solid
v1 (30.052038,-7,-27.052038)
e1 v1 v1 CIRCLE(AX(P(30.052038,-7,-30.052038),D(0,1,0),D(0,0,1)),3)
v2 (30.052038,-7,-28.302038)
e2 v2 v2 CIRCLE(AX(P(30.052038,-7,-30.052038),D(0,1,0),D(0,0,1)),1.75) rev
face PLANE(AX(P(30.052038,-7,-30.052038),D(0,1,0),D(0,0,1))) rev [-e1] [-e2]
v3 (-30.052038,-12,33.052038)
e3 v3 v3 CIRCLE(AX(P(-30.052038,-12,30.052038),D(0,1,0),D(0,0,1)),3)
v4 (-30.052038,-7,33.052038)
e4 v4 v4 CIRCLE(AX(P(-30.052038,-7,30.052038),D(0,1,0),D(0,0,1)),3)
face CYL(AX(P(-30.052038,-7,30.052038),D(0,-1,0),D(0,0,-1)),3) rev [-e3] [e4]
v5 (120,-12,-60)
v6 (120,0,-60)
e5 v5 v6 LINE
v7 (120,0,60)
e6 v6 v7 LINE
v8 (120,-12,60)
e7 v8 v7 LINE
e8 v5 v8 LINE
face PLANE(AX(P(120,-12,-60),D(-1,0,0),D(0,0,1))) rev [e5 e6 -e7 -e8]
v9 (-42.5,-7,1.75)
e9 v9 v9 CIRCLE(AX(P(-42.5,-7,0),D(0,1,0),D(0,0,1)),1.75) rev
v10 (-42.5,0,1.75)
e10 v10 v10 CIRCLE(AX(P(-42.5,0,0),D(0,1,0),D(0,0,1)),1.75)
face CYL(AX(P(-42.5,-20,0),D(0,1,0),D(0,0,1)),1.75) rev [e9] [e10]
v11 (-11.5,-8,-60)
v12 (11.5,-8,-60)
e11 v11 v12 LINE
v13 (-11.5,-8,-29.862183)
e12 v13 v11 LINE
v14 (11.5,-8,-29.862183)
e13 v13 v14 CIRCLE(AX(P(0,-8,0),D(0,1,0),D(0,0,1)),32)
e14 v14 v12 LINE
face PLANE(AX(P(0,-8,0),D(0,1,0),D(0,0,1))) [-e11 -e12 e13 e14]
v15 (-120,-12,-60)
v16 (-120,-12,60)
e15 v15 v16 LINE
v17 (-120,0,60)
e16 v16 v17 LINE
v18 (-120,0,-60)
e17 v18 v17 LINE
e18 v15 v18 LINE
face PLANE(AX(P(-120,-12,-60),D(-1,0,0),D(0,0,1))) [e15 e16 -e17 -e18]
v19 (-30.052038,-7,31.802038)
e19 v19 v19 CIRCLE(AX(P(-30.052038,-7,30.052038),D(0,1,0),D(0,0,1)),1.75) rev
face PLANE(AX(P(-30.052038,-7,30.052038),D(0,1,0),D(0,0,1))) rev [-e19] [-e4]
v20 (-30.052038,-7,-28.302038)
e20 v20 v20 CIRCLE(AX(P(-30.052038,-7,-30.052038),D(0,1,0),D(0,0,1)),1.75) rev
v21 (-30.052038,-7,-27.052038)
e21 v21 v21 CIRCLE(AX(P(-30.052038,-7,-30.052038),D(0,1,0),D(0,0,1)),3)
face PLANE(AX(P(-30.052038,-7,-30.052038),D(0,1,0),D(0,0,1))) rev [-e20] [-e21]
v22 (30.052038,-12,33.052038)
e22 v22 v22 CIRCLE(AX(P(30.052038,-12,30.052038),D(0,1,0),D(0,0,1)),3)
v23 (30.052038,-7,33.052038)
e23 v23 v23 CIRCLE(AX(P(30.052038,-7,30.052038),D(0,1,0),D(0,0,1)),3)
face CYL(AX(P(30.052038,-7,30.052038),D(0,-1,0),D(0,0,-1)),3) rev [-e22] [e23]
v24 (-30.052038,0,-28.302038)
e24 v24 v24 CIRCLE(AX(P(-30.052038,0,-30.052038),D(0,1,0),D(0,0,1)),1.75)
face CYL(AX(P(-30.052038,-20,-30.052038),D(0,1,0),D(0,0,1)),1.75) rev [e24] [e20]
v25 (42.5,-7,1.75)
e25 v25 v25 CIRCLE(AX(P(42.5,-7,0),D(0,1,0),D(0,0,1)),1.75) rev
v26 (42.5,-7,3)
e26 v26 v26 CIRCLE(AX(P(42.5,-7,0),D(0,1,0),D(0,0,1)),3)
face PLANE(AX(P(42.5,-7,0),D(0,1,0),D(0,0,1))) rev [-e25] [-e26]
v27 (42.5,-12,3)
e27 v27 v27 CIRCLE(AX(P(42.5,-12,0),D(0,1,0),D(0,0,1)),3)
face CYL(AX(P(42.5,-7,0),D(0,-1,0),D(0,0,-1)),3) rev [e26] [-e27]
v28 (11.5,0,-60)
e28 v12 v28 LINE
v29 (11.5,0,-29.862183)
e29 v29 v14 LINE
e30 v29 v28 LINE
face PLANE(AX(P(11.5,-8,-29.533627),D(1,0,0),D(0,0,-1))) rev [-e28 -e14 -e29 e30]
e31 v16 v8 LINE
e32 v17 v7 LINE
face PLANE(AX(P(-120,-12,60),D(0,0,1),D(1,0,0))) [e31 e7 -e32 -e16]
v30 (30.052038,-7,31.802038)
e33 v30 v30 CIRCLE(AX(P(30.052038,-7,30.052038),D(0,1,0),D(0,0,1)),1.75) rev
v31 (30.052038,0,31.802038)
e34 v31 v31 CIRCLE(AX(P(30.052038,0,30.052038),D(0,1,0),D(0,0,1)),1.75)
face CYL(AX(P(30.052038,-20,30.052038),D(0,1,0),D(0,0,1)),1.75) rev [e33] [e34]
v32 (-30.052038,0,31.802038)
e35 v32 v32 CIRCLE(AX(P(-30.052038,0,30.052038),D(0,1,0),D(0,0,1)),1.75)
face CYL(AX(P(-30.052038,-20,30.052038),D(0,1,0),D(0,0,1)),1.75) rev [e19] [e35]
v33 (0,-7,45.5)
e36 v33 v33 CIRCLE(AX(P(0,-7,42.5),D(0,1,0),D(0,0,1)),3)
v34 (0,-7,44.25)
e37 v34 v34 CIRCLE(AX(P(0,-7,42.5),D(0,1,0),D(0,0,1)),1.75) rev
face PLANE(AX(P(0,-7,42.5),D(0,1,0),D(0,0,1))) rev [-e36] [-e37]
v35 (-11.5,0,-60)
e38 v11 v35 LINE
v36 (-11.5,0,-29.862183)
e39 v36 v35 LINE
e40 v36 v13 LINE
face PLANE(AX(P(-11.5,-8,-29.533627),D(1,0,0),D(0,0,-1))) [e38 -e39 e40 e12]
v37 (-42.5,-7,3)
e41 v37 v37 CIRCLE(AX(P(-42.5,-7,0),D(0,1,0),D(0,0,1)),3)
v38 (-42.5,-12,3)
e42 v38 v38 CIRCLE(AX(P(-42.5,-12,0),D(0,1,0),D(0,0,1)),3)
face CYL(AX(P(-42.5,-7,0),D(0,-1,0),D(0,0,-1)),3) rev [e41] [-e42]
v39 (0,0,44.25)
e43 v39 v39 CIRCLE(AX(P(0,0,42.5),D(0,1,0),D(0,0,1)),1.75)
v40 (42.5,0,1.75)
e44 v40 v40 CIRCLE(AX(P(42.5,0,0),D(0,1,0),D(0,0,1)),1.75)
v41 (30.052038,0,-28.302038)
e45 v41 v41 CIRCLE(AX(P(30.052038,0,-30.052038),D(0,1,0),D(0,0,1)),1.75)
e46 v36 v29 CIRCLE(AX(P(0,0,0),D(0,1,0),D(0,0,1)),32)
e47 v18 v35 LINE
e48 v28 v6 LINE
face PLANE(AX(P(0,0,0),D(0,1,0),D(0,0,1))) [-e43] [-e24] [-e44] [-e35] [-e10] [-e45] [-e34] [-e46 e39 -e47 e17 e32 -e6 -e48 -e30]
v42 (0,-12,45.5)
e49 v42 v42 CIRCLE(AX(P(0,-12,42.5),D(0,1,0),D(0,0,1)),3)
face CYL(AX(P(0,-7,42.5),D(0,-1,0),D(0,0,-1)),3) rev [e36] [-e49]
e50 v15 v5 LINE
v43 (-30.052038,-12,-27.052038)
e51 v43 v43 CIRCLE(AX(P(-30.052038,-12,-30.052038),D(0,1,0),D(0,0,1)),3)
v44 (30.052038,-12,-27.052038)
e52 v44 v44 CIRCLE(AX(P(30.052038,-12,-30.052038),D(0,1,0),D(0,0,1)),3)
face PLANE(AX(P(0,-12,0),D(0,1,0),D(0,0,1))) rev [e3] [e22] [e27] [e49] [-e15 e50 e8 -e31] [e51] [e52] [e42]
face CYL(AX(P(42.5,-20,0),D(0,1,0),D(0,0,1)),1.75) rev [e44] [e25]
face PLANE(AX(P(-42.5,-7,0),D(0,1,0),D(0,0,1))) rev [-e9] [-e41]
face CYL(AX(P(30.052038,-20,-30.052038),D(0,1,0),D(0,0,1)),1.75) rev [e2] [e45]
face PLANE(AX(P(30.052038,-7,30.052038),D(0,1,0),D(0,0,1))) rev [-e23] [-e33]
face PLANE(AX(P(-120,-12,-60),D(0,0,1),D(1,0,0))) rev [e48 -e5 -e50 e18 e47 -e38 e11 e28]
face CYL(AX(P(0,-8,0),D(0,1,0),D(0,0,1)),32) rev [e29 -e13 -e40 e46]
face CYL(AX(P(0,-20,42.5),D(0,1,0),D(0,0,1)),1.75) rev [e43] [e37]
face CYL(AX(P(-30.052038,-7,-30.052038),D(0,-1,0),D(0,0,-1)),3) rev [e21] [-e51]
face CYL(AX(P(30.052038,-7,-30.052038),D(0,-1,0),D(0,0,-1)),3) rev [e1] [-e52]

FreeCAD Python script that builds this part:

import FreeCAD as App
import Part
import Sketcher

V = App.Vector


def add_polygon(sketch, points):
    """Adds a closed chain of lines whose ends are joined by coincident constraints."""
    first, n = sketch.GeometryCount, len(points)
    for a, b in zip(points, points[1:] + points[:1]):
        sketch.addGeometry(Part.LineSegment(App.Vector(*a, 0), App.Vector(*b, 0)), False)
    for i in range(n):
        sketch.addConstraint(Sketcher.Constraint("Coincident", first + i, 2, first + (i + 1) % n, 1))

doc = App.newDocument("Part")
body = doc.addObject("PartDesign::Body", "Body")

# Sketch on XZ plane
sketch1 = body.newObject("Sketcher::SketchObject", "Sketch")
sketch1.AttachmentSupport = (doc.getObject("XZ_Plane"), [""])
sketch1.MapMode = "FlatFace"
add_polygon(sketch1, [(-120, -60), (-120, 60), (120, 60), (120, -60)])  # lines 0-3
sketch1.addConstraint([
    Sketcher.Constraint("Vertical", 0),
    Sketcher.Constraint("Horizontal", 1),
    Sketcher.Constraint("Vertical", 2),
    Sketcher.Constraint("Horizontal", 3),
    Sketcher.Constraint("Symmetric", 0, 2, 2, 2, -1, 1),
    Sketcher.Constraint("DistanceX", 1, 1, 1, 2, 240.0),
    Sketcher.Constraint("DistanceY", 0, 1, 0, 2, 120.0),
])
pad1 = body.newObject("PartDesign::Pad", "Pad")
pad1.Profile = sketch1
pad1.Length = 12

# Sketch on XZ plane
sketch2 = body.newObject("Sketcher::SketchObject", "Sketch001")
sketch2.AttachmentSupport = (doc.getObject("XZ_Plane"), [""])
sketch2.MapMode = "FlatFace"
sketch2.addGeometry(Part.Circle(V(0, 0, 0), V(0, 0, 1), 32), False)
sketch2.addConstraint([
    Sketcher.Constraint("Coincident", 0, 3, -1, 1),
    Sketcher.Constraint("Diameter", 0, 64.0),
])
pocket1 = body.newObject("PartDesign::Pocket", "Pocket")
pocket1.Profile = sketch2
pocket1.Length = 8
pocket1.Reversed = True

# Sketch on XZ plane
sketch3 = body.newObject("Sketcher::SketchObject", "Sketch002")
sketch3.AttachmentSupport = (doc.getObject("XZ_Plane"), [""])
sketch3.MapMode = "FlatFace"
add_polygon(sketch3, [(-12, -60), (-12, -30), (12, -30), (12, -60)])  # lines 0-3
sketch3.addConstraint([
    Sketcher.Constraint("Vertical", 0),
    Sketcher.Constraint("Horizontal", 1),
    Sketcher.Constraint("Vertical", 2),
    Sketcher.Constraint("Horizontal", 3),
    Sketcher.Constraint("DistanceX", 1, 1, 1, 2, 23.0),
    Sketcher.Constraint("DistanceY", 2, 2, -1, 1, 60.0),
    Sketcher.Constraint("DistanceX", 0, 2, -1, 1, 11.5),
    Sketcher.Constraint("DistanceY", 0, 1, 0, 2, 30.466373),
])
pocket2 = body.newObject("PartDesign::Pocket", "Pocket001")
pocket2.Profile = sketch3
pocket2.Length = 8
pocket2.Reversed = True

# Sketch on XZ plane
sketch4 = body.newObject("Sketcher::SketchObject", "Sketch003")
sketch4.AttachmentSupport = (doc.getObject("XZ_Plane"), [""])
sketch4.MapMode = "FlatFace"
sketch4.addGeometry([
    Part.Circle(V(-42.5, 0, 0), V(0, 0, 1), 1.8),  # 0
    Part.Circle(V(-30.1, -30.1, 0), V(0, 0, 1), 1.8),  # 1
    Part.Circle(V(30.1, -30.1, 0), V(0, 0, 1), 1.8),  # 2
    Part.Circle(V(42.5, 0, 0), V(0, 0, 1), 1.8),  # 3
    Part.Circle(V(30.1, 30.1, 0), V(0, 0, 1), 1.8),  # 4
    Part.Circle(V(0, 42.5, 0), V(0, 0, 1), 1.8),  # 5
    Part.Circle(V(-30.1, 30.1, 0), V(0, 0, 1), 1.8),  # 6
], False)
sketch4.addConstraint([
    Sketcher.Constraint("Equal", 0, 1),
    Sketcher.Constraint("Equal", 1, 2),
    Sketcher.Constraint("Equal", 2, 3),
    Sketcher.Constraint("Equal", 3, 4),
    Sketcher.Constraint("Equal", 4, 5),
    Sketcher.Constraint("Equal", 5, 6),
    Sketcher.Constraint("Symmetric", 0, 3, 3, 3, -1, 1),
    Sketcher.Constraint("Symmetric", 1, 3, 4, 3, -1, 1),
    Sketcher.Constraint("Symmetric", 2, 3, 6, 3, -1, 1),
    Sketcher.Constraint("Symmetric", 1, 3, 2, 3, -2),
    Sketcher.Constraint("PointOnObject", 0, 3, -1),
    Sketcher.Constraint("PointOnObject", 5, 3, -2),
    Sketcher.Constraint("Diameter", 0, 3.5),
    Sketcher.Constraint("DistanceX", 0, 3, 3, 3, 85.0),
    Sketcher.Constraint("DistanceY", -1, 1, 5, 3, 42.5),
    Sketcher.Constraint("DistanceX", 1, 3, -1, 1, 30.052038),
    Sketcher.Constraint("DistanceY", 1, 3, -1, 1, 30.052038),
])
pocket3 = body.newObject("PartDesign::Pocket", "Pocket002")
pocket3.Profile = sketch4
pocket3.Length = 20
pocket3.Reversed = True

# Sketch on XZ plane
sketch5 = body.newObject("Sketcher::SketchObject", "Sketch004")
sketch5.AttachmentSupport = (doc.getObject("XZ_Plane"), [""])
sketch5.MapMode = "FlatFace"
sketch5.AttachmentOffset = App.Placement(V(0, 0, 12), App.Rotation())
sketch5.addGeometry([
    Part.Circle(V(-42.5, 0, 0), V(0, 0, 1), 3),  # 0
    Part.Circle(V(-30.1, -30.1, 0), V(0, 0, 1), 3),  # 1
    Part.Circle(V(30.1, -30.1, 0), V(0, 0, 1), 3),  # 2
    Part.Circle(V(42.5, 0, 0), V(0, 0, 1), 3),  # 3
    Part.Circle(V(30.1, 30.1, 0), V(0, 0, 1), 3),  # 4
    Part.Circle(V(0, 42.5, 0), V(0, 0, 1), 3),  # 5
    Part.Circle(V(-30.1, 30.1, 0), V(0, 0, 1), 3),  # 6
], False)
sketch5.addConstraint([
    Sketcher.Constraint("Equal", 0, 1),
    Sketcher.Constraint("Equal", 1, 2),
    Sketcher.Constraint("Equal", 2, 3),
    Sketcher.Constraint("Equal", 3, 4),
    Sketcher.Constraint("Equal", 4, 5),
    Sketcher.Constraint("Equal", 5, 6),
    Sketcher.Constraint("Symmetric", 0, 3, 3, 3, -1, 1),
    Sketcher.Constraint("Symmetric", 1, 3, 4, 3, -1, 1),
    Sketcher.Constraint("Symmetric", 2, 3, 6, 3, -1, 1),
    Sketcher.Constraint("Symmetric", 1, 3, 2, 3, -2),
    Sketcher.Constraint("PointOnObject", 0, 3, -1),
    Sketcher.Constraint("PointOnObject", 5, 3, -2),
    Sketcher.Constraint("Diameter", 0, 6.0),
    Sketcher.Constraint("DistanceX", 0, 3, 3, 3, 85.0),
    Sketcher.Constraint("DistanceY", -1, 1, 5, 3, 42.5),
    Sketcher.Constraint("DistanceX", 1, 3, -1, 1, 30.052038),
    Sketcher.Constraint("DistanceY", 1, 3, -1, 1, 30.052038),
])
pocket4 = body.newObject("PartDesign::Pocket", "Pocket003")
pocket4.Profile = sketch5
pocket4.Length = 5

doc.recompute()
